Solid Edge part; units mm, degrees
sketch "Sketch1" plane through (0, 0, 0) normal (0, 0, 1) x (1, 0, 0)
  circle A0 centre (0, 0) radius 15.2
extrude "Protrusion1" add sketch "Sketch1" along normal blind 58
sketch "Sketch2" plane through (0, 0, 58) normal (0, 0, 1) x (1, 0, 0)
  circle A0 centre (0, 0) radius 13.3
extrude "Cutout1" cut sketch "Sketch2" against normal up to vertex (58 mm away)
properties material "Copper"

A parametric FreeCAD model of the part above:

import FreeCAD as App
import Part
import Sketcher

V = App.Vector

doc = App.newDocument("Part")
body = doc.addObject("PartDesign::Body", "Body")

# Sketch on XY plane
sketch1 = body.newObject("Sketcher::SketchObject", "Sketch")
sketch1.AttachmentSupport = (doc.getObject("XY_Plane"), [""])
sketch1.MapMode = "FlatFace"
sketch1.addGeometry(Part.Circle(V(0, 0, 0), V(0, 0, 1), 15.2), False)
sketch1.addConstraint([
    Sketcher.Constraint("Coincident", 0, 3, -1, 1),
    Sketcher.Constraint("Diameter", 0, 30.4),
])
pad1 = body.newObject("PartDesign::Pad", "Pad")
pad1.Profile = sketch1
pad1.Length = 58

# Sketch on XY plane
sketch2 = body.newObject("Sketcher::SketchObject", "Sketch001")
sketch2.AttachmentSupport = (doc.getObject("XY_Plane"), [""])
sketch2.MapMode = "FlatFace"
sketch2.AttachmentOffset = App.Placement(V(0, 0, 58), App.Rotation())
sketch2.addGeometry(Part.Circle(V(0, 0, 0), V(0, 0, 1), 13.3), False)
sketch2.addConstraint([
    Sketcher.Constraint("Coincident", 0, 3, -1, 1),
    Sketcher.Constraint("Diameter", 0, 26.6),
])
pocket1 = body.newObject("PartDesign::Pocket", "Pocket")
pocket1.Profile = sketch2
pocket1.Length = 58

doc.recompute()
